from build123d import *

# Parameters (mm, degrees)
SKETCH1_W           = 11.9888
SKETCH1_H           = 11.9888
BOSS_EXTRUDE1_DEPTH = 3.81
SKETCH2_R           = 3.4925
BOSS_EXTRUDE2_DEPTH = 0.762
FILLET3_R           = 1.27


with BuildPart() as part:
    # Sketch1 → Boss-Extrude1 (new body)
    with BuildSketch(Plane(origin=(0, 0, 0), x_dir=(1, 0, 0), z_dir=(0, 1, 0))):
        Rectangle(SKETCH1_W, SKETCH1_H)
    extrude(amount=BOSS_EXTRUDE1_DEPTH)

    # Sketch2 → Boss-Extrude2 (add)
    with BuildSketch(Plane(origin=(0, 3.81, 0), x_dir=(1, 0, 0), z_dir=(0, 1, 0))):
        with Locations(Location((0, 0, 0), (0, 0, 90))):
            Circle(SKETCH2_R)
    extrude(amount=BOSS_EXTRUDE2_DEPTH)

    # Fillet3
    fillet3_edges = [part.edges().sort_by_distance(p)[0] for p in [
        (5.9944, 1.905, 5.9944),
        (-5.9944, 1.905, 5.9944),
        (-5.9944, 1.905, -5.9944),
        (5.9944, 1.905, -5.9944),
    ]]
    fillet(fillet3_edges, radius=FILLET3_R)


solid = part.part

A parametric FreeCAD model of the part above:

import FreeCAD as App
import Part
import Sketcher
from FreeCAD import Vector
Q = App.Units.Quantity


def edges_at(feature, points):
    """Names of the edges that pass closest to the given points."""
    edges = feature.Shape.Edges
    near = lambda p: min(range(len(edges)), key=lambda i: edges[i].distToShape(Part.Vertex(*p))[0])
    return sorted({f"Edge{near(p) + 1}" for p in points})

doc = App.newDocument("Part")
body = doc.addObject("PartDesign::Body", "Body")

# Sketch on XZ plane
sketch1 = body.newObject("Sketcher::SketchObject", "Sketch")
sketch1.AttachmentSupport = (doc.getObject("XZ_Plane"), [""])
sketch1.MapMode = "FlatFace"
sketch1.addGeometry(Part.LineSegment(Vector(-6, -6, 0), Vector(-6, 6, 0)), False)
sketch1.addGeometry(Part.LineSegment(Vector(-6, 6, 0), Vector(6, 6, 0)), False)
sketch1.addGeometry(Part.LineSegment(Vector(6, 6, 0), Vector(6, -6, 0)), False)
sketch1.addGeometry(Part.LineSegment(Vector(6, -6, 0), Vector(-6, -6, 0)), False)
sketch1.addConstraint(Sketcher.Constraint("Coincident", 0, 2, 1, 1))
sketch1.addConstraint(Sketcher.Constraint("Coincident", 1, 2, 2, 1))
sketch1.addConstraint(Sketcher.Constraint("Coincident", 2, 2, 3, 1))
sketch1.addConstraint(Sketcher.Constraint("Coincident", 3, 2, 0, 1))
sketch1.addConstraint(Sketcher.Constraint("Vertical", 0))
sketch1.addConstraint(Sketcher.Constraint("Horizontal", 1))
sketch1.addConstraint(Sketcher.Constraint("Vertical", 2))
sketch1.addConstraint(Sketcher.Constraint("Horizontal", 3))
sketch1.addConstraint(Sketcher.Constraint("Symmetric", 0, 2, 2, 2, -1, 1))
sketch1.addConstraint(Sketcher.Constraint("Equal", 3, 0))
sketch1.addConstraint(Sketcher.Constraint("DistanceX", 1, 1, 1, 2, Q("0.472 in")))
pad1 = body.newObject("PartDesign::Pad", "Pad")
pad1.Profile = sketch1
pad1.Length = Q("0.15 in")
pad1.Reversed = True

# Sketch on XZ plane
sketch2 = body.newObject("Sketcher::SketchObject", "Sketch001")
sketch2.AttachmentSupport = (doc.getObject("XZ_Plane"), [""])
sketch2.MapMode = "FlatFace"
sketch2.AttachmentOffset = App.Placement(Vector(0, 0, -0.15 * 25.4), App.Rotation())
sketch2.addGeometry(Part.Circle(Vector(0, 0, 0), Vector(0, 0, 1), 3.5), False)
sketch2.addConstraint(Sketcher.Constraint("Coincident", 0, 3, -1, 1))
sketch2.addConstraint(Sketcher.Constraint("Diameter", 0, Q("0.275 in")))
pad2 = body.newObject("PartDesign::Pad", "Pad001")
pad2.Profile = sketch2
pad2.Length = Q("0.03 in")
pad2.Reversed = True
doc.recompute()

fillet = body.newObject("PartDesign::Fillet", "Fillet")
fillet.Base = (pad2, edges_at(pad2, [
    (5.994, 1.905, 5.994),
    (-5.994, 1.905, 5.994),
    (-5.994, 1.905, -5.994),
    (5.994, 1.905, -5.994),
]))
fillet.Radius = Q("0.05 in")

doc.recompute()
